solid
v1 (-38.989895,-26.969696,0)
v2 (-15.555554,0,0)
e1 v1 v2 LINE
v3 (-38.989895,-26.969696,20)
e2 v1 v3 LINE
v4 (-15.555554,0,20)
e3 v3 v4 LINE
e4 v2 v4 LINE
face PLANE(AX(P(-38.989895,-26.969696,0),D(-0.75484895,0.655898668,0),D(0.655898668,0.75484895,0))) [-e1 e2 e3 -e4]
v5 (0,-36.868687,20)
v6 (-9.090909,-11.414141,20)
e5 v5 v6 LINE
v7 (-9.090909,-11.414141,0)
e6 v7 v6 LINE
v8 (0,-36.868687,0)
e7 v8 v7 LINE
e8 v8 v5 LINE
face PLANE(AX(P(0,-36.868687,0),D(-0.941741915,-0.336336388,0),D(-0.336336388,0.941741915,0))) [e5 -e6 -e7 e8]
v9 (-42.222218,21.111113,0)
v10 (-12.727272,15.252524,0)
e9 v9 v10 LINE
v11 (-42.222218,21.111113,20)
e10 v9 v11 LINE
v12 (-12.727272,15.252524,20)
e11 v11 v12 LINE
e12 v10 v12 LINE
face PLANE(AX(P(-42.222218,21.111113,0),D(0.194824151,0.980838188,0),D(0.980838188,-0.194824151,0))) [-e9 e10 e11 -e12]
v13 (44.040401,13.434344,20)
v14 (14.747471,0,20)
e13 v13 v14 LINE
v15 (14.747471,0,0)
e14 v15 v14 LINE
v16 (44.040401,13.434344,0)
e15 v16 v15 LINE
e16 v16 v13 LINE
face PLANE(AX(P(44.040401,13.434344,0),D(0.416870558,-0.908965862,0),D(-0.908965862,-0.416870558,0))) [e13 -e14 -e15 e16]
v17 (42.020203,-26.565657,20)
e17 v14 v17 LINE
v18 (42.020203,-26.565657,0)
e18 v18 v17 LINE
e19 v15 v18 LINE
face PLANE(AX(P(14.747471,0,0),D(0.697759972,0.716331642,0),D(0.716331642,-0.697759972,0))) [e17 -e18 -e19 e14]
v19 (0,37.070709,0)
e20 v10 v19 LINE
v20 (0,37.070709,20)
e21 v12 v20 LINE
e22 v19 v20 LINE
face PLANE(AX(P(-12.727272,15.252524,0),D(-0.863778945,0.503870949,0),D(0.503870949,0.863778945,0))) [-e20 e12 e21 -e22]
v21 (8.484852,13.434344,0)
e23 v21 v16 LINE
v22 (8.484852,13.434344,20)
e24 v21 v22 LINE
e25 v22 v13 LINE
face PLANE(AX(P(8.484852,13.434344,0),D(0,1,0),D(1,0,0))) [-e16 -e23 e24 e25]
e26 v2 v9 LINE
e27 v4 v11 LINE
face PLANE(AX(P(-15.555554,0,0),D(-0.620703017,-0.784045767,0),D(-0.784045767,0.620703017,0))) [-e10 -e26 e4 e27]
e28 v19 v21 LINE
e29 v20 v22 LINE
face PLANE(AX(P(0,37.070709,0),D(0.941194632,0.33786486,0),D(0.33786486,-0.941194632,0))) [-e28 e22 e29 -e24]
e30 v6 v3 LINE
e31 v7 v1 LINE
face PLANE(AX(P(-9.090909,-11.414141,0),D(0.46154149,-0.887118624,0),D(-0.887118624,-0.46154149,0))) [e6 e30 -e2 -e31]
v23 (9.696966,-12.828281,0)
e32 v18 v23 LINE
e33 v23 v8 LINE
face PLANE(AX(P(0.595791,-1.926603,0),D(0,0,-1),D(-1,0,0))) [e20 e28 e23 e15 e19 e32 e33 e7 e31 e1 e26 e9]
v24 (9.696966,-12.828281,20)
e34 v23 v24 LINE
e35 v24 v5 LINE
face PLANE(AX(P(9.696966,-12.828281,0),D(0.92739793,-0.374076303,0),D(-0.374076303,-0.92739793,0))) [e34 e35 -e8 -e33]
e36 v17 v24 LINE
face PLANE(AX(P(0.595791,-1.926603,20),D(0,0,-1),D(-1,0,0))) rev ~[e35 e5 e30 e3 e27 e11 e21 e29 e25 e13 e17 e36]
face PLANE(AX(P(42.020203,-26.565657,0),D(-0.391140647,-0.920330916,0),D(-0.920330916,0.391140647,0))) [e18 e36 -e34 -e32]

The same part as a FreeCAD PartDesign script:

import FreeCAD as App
import Part
import Sketcher


def add_polygon(sketch, points):
    """Adds a closed chain of lines whose ends are joined by coincident constraints."""
    first, n = sketch.GeometryCount, len(points)
    for a, b in zip(points, points[1:] + points[:1]):
        sketch.addGeometry(Part.LineSegment(App.Vector(*a, 0), App.Vector(*b, 0)), False)
    for i in range(n):
        sketch.addConstraint(Sketcher.Constraint("Coincident", first + i, 2, first + (i + 1) % n, 1))

doc = App.newDocument("Part")
params = doc.addObject("Spreadsheet::Sheet", "Params")
for row, (alias, value) in enumerate([
    ("pad1_length", "20 mm"),
], start=1):
    params.set(f"A{row}", alias)
    params.set(f"B{row}", "=" + value)
    params.setAlias(f"B{row}", alias)

body = doc.addObject("PartDesign::Body", "Body")

# Sketch on XY plane
sketch1 = doc.addObject("Sketcher::SketchObject", "Sketch")
body.addObject(sketch1)
sketch1.AttachmentSupport = (doc.XY_Plane, [""])
sketch1.MapMode = "FlatFace"
add_polygon(sketch1, [(8, 13), (0, 37), (-13, 15), (-42, 21), (-16, 0), (-39, -27), (-9, -11), (0, -37), (10, -13), (42, -27), (15, 0), (44, 13)])  # lines 0-11
sketch1.addConstraint(Sketcher.Constraint("Horizontal", 11))
sketch1.addConstraint(Sketcher.Constraint("PointOnObject", 0, 2, -2))
sketch1.addConstraint(Sketcher.Constraint("PointOnObject", 3, 2, -1))
sketch1.addConstraint(Sketcher.Constraint("PointOnObject", 6, 2, -2))
sketch1.addConstraint(Sketcher.Constraint("PointOnObject", 9, 2, -1))
sketch1.addConstraint(Sketcher.Constraint("DistanceY", 8, 2, 10, 2, 40.000001))
sketch1.addConstraint(Sketcher.Constraint("Distance", 4, 35.7286))
sketch1.addConstraint(Sketcher.Constraint("DistanceX", 11, 2, 11, 1, 35.555549))
sketch1.addConstraint(Sketcher.Constraint("DistanceX", -1, 1, 10, 2, 44.040401))
sketch1.addConstraint(Sketcher.Constraint("DistanceY", 6, 2, 2, 2, 57.9798))
sketch1.addConstraint(Sketcher.Constraint("DistanceX", 8, 2, 10, 2, 2.020198))
sketch1.addConstraint(Sketcher.Constraint("Distance", 1, 25.258991))
sketch1.addConstraint(Sketcher.Constraint("Distance", 5, 33.703481))
sketch1.addConstraint(Sketcher.Constraint("Distance", 8, 35.12132))
sketch1.addConstraint(Sketcher.Constraint("DistanceY", -1, 1, 0, 2, 37.070709))
sketch1.addConstraint(Sketcher.Constraint("DistanceX", 1, 2, -1, 1, 12.727272))
sketch1.addConstraint(Sketcher.Constraint("DistanceX", 5, 2, -1, 1, 9.090909))
sketch1.addConstraint(Sketcher.Constraint("DistanceY", 5, 2, -1, 1, 11.414141))
sketch1.addConstraint(Sketcher.Constraint("DistanceY", 7, 2, -1, 1, 12.828281))
sketch1.addConstraint(Sketcher.Constraint("DistanceX", -1, 1, 9, 2, 14.747471))
sketch1.addConstraint(Sketcher.Constraint("DistanceY", 1, 2, 2, 2, 5.858589))
sketch1.addConstraint(Sketcher.Constraint("DistanceX", 4, 2, 3, 2, 23.434341))
sketch1.addConstraint(Sketcher.Constraint("DistanceX", 2, 2, 5, 2, 33.131309))
sketch1.addConstraint(Sketcher.Constraint("DistanceX", 3, 2, 7, 2, 25.25252))
pad1 = doc.addObject("PartDesign::Pad", "Pad")
body.addObject(pad1)
pad1.Profile = sketch1
pad1.setExpression("Length", "Params.pad1_length")

doc.recompute()
